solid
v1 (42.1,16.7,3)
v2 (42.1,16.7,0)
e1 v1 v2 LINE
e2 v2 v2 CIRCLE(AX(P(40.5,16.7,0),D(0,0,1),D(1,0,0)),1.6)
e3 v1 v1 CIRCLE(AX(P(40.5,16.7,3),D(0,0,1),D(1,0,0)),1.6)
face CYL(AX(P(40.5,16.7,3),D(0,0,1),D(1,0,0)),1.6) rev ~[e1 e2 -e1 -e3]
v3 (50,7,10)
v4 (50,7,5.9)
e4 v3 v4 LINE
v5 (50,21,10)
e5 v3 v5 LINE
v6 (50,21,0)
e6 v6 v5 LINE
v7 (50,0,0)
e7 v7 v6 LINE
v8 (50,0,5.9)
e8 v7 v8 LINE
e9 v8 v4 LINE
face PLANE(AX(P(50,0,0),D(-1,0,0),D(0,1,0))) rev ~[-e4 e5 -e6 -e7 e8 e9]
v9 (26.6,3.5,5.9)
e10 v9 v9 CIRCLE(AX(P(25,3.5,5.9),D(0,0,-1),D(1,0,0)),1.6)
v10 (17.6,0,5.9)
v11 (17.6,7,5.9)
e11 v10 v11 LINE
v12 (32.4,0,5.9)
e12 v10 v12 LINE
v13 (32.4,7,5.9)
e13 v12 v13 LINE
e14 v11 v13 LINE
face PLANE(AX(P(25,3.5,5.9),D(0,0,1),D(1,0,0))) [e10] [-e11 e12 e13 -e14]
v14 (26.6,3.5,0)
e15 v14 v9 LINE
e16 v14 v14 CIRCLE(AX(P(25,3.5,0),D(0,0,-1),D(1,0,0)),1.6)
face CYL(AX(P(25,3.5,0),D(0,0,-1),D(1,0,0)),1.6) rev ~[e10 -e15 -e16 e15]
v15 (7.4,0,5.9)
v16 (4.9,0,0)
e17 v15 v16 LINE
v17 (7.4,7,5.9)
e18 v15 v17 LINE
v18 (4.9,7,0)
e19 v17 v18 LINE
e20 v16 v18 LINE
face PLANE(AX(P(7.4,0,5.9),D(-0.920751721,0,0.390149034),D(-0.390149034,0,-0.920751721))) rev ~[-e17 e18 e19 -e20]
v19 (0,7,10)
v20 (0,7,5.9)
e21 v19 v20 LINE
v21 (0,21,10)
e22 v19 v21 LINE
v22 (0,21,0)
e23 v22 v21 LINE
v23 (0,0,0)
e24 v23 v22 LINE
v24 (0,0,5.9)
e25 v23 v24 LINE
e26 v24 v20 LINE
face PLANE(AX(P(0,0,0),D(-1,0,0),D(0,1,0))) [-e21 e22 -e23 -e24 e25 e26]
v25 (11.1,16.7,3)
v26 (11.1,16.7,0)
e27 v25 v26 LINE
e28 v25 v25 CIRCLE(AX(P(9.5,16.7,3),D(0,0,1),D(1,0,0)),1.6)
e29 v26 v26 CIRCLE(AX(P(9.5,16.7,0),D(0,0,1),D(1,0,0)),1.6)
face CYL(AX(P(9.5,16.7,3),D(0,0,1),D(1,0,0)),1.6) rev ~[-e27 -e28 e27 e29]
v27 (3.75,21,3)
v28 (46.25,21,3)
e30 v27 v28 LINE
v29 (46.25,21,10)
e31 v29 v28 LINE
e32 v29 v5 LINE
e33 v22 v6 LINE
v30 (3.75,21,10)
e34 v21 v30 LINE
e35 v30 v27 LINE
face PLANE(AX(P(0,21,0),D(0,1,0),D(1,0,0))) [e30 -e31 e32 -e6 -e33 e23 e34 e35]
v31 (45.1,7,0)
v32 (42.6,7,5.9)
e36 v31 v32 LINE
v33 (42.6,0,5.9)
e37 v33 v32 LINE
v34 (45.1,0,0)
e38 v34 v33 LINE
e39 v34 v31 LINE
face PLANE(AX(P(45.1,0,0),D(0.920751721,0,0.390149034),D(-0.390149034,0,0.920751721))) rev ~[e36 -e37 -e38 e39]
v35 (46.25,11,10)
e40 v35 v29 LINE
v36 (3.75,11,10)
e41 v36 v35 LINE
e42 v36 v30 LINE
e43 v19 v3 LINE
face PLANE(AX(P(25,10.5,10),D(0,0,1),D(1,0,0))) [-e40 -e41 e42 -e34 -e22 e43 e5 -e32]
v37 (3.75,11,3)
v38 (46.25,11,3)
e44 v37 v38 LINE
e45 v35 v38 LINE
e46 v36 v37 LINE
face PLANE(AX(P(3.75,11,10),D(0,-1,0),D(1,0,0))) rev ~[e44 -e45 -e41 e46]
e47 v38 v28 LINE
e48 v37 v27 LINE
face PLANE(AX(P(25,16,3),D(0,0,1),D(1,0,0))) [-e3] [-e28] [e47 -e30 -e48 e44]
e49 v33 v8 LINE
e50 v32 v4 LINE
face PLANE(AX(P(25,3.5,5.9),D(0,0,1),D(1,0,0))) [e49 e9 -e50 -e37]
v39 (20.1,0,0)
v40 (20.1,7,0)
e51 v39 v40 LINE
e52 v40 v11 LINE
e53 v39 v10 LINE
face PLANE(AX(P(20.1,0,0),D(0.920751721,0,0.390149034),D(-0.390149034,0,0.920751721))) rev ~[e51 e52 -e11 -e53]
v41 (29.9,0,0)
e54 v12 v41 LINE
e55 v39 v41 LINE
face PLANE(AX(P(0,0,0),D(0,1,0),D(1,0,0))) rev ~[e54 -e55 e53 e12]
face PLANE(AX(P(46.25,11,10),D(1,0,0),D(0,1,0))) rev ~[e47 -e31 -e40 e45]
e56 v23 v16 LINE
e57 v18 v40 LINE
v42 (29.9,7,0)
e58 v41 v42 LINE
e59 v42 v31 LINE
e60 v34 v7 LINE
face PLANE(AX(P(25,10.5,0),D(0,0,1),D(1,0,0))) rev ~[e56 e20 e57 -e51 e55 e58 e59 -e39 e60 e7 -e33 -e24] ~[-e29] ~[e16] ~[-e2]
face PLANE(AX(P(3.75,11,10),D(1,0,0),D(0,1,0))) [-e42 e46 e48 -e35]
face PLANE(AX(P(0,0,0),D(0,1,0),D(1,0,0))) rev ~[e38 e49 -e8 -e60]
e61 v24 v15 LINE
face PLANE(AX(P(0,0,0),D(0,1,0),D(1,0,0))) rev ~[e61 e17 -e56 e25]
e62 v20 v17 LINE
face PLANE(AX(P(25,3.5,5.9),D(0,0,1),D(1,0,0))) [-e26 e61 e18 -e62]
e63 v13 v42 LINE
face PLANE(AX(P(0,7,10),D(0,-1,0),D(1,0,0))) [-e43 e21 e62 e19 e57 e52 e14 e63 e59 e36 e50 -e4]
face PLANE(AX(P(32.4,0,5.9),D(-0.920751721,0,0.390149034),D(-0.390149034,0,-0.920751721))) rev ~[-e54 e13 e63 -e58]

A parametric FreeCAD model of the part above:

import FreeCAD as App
import Part
import Sketcher
from FreeCAD import Vector
Q = App.Units.Quantity


def add_polygon(sketch, points):
    """Adds a closed chain of lines whose ends are joined by coincident constraints."""
    first, n = sketch.GeometryCount, len(points)
    for a, b in zip(points, points[1:] + points[:1]):
        sketch.addGeometry(Part.LineSegment(App.Vector(*a, 0), App.Vector(*b, 0)), False)
    for i in range(n):
        sketch.addConstraint(Sketcher.Constraint("Coincident", first + i, 2, first + (i + 1) % n, 1))

doc = App.newDocument("Part")
body = doc.addObject("PartDesign::Body", "Body")

# Sketch on XY plane
sketch1 = doc.addObject("Sketcher::SketchObject", "Sketch")
body.addObject(sketch1)
sketch1.AttachmentSupport = (doc.XY_Plane, [""])
sketch1.MapMode = "FlatFace"
add_polygon(sketch1, [(0, 21), (0, 0), (50, 0), (50, 21)])  # lines 0-3
sketch1.addConstraint(Sketcher.Constraint("Vertical", 0))
sketch1.addConstraint(Sketcher.Constraint("Horizontal", 1))
sketch1.addConstraint(Sketcher.Constraint("Vertical", 2))
sketch1.addConstraint(Sketcher.Constraint("Horizontal", 3))
sketch1.addConstraint(Sketcher.Constraint("Coincident", 0, 2, -1, 1))
sketch1.addConstraint(Sketcher.Constraint("DistanceX", 1, 1, 1, 2, Q("50 mm")))
sketch1.addConstraint(Sketcher.Constraint("DistanceY", 0, 2, 0, 1, Q("21 mm")))
pad1 = doc.addObject("PartDesign::Pad", "Pad")
body.addObject(pad1)
pad1.Profile = sketch1
pad1.Length = 10

# Sketch on XY plane
sketch2 = doc.addObject("Sketcher::SketchObject", "Sketch001")
body.addObject(sketch2)
sketch2.AttachmentSupport = (doc.XY_Plane, [""])
sketch2.MapMode = "FlatFace"
sketch2.AttachmentOffset = App.Placement(Vector(0, 0, 10), App.Rotation())
add_polygon(sketch2, [(3.75, 21), (3.75, 11), (46.25, 11), (46.25, 21)])  # lines 0-3
sketch2.addConstraint(Sketcher.Constraint("Vertical", 0))
sketch2.addConstraint(Sketcher.Constraint("Horizontal", 1))
sketch2.addConstraint(Sketcher.Constraint("Vertical", 2))
sketch2.addConstraint(Sketcher.Constraint("Horizontal", 3))
sketch2.addConstraint(Sketcher.Constraint("DistanceY", 0, 2, 0, 1, Q("10 mm")))
sketch2.addConstraint(Sketcher.Constraint("DistanceX", 1, 1, 1, 2, Q("42.5 mm")))
sketch2.addConstraint(Sketcher.Constraint("DistanceY", -1, 1, 0, 2, Q("11 mm")))
sketch2.addConstraint(Sketcher.Constraint("DistanceX", -1, 1, 0, 2, Q("3.75 mm")))
pocket1 = doc.addObject("PartDesign::Pocket", "Pocket")
body.addObject(pocket1)
pocket1.Profile = sketch2
pocket1.Length = 7

# Sketch on XY plane
sketch3 = doc.addObject("Sketcher::SketchObject", "Sketch002")
body.addObject(sketch3)
sketch3.AttachmentSupport = (doc.XY_Plane, [""])
sketch3.MapMode = "FlatFace"
sketch3.AttachmentOffset = App.Placement(Vector(0, 0, 3), App.Rotation())
sketch3.addGeometry(Part.Circle(Vector(9.5, 16.7, 0), Vector(0, 0, 1), 1.6), False)
sketch3.addGeometry(Part.Circle(Vector(40.5, 16.7, 0), Vector(0, 0, 1), 1.6), False)
sketch3.addConstraint(Sketcher.Constraint("Equal", 0, 1))
sketch3.addConstraint(Sketcher.Constraint("Horizontal", 0, 3, 1, 3))
sketch3.addConstraint(Sketcher.Constraint("Diameter", 0, Q("3.2 mm")))
sketch3.addConstraint(Sketcher.Constraint("DistanceX", 0, 3, 1, 3, Q("31 mm")))
sketch3.addConstraint(Sketcher.Constraint("DistanceX", -1, 1, 0, 3, Q("9.5 mm")))
sketch3.addConstraint(Sketcher.Constraint("DistanceY", -1, 1, 0, 3, Q("16.7 mm")))
pocket2 = doc.addObject("PartDesign::Pocket", "Pocket001")
body.addObject(pocket2)
pocket2.Profile = sketch3
pocket2.Length = 5

# Sketch on XZ plane
sketch4 = doc.addObject("Sketcher::SketchObject", "Sketch003")
body.addObject(sketch4)
sketch4.AttachmentSupport = (doc.XZ_Plane, [""])
sketch4.MapMode = "FlatFace"
add_polygon(sketch4, [(4.9, 0), (20.1, 0), (17.6, 5.9), (7.4, 5.9)])  # lines 0-3
add_polygon(sketch4, [(29.9, 0), (45.1, 0), (42.6, 5.9), (32.4, 5.9)])  # lines 4-7
sketch4.addConstraint(Sketcher.Constraint("Horizontal", 0))
sketch4.addConstraint(Sketcher.Constraint("Horizontal", 2))
sketch4.addConstraint(Sketcher.Constraint("Horizontal", 4))
sketch4.addConstraint(Sketcher.Constraint("Horizontal", 6))
sketch4.addConstraint(Sketcher.Constraint("PointOnObject", 0, 2, -1))
sketch4.addConstraint(Sketcher.Constraint("PointOnObject", 4, 2, -1))
sketch4.addConstraint(Sketcher.Constraint("Parallel", 1, 5))
sketch4.addConstraint(Sketcher.Constraint("Parallel", 3, 7))
sketch4.addConstraint(Sketcher.Constraint("Horizontal", 2, 2, 5, 2))
sketch4.addConstraint(Sketcher.Constraint("Equal", 0, 4))
sketch4.addConstraint(Sketcher.Constraint("Equal", 1, 3))
sketch4.addConstraint(Sketcher.Constraint("DistanceX", 0, 1, 0, 2, Q("15.2 mm")))
sketch4.addConstraint(Sketcher.Constraint("DistanceX", 2, 2, 2, 1, Q("10.2 mm")))
sketch4.addConstraint(Sketcher.Constraint("DistanceX", 0, 2, 4, 2, Q("25 mm")))
sketch4.addConstraint(Sketcher.Constraint("DistanceX", -1, 1, 0, 2, Q("20.1 mm")))
sketch4.addConstraint(Sketcher.Constraint("DistanceY", -1, 1, 1, 2, Q("5.9 mm")))
pocket3 = doc.addObject("PartDesign::Pocket", "Pocket002")
body.addObject(pocket3)
pocket3.Profile = sketch4
pocket3.Length = 7

# Sketch on XY plane
sketch5 = doc.addObject("Sketcher::SketchObject", "Sketch004")
body.addObject(sketch5)
sketch5.AttachmentSupport = (doc.XY_Plane, [""])
sketch5.MapMode = "FlatFace"
sketch5.AttachmentOffset = App.Placement(Vector(0, 0, 10), App.Rotation())
add_polygon(sketch5, [(0, 7), (0, 0), (50, 0), (50, 7)])  # lines 0-3
sketch5.addConstraint(Sketcher.Constraint("Vertical", 0))
sketch5.addConstraint(Sketcher.Constraint("Horizontal", 1))
sketch5.addConstraint(Sketcher.Constraint("Vertical", 2))
sketch5.addConstraint(Sketcher.Constraint("Horizontal", 3))
sketch5.addConstraint(Sketcher.Constraint("Coincident", 0, 2, -1, 1))
sketch5.addConstraint(Sketcher.Constraint("DistanceX", 1, 1, 1, 2, Q("50 mm")))
sketch5.addConstraint(Sketcher.Constraint("DistanceY", 0, 2, 0, 1, Q("7 mm")))
pocket4 = doc.addObject("PartDesign::Pocket", "Pocket003")
body.addObject(pocket4)
pocket4.Profile = sketch5
pocket4.Length = 4.1

# Sketch on XY plane
sketch6 = doc.addObject("Sketcher::SketchObject", "Sketch005")
body.addObject(sketch6)
sketch6.AttachmentSupport = (doc.XY_Plane, [""])
sketch6.MapMode = "FlatFace"
sketch6.addGeometry(Part.Circle(Vector(25, 3.5, 0), Vector(0, 0, 1), 1.6), False)
sketch6.addConstraint(Sketcher.Constraint("Diameter", 0, Q("3.2 mm")))
sketch6.addConstraint(Sketcher.Constraint("DistanceX", -1, 1, 0, 3, Q("25 mm")))
sketch6.addConstraint(Sketcher.Constraint("DistanceY", -1, 1, 0, 3, Q("3.5 mm")))
pocket5 = doc.addObject("PartDesign::Pocket", "Pocket004")
body.addObject(pocket5)
pocket5.Profile = sketch6
pocket5.Type = "ThroughAll"
pocket5.Reversed = True

doc.recompute()
